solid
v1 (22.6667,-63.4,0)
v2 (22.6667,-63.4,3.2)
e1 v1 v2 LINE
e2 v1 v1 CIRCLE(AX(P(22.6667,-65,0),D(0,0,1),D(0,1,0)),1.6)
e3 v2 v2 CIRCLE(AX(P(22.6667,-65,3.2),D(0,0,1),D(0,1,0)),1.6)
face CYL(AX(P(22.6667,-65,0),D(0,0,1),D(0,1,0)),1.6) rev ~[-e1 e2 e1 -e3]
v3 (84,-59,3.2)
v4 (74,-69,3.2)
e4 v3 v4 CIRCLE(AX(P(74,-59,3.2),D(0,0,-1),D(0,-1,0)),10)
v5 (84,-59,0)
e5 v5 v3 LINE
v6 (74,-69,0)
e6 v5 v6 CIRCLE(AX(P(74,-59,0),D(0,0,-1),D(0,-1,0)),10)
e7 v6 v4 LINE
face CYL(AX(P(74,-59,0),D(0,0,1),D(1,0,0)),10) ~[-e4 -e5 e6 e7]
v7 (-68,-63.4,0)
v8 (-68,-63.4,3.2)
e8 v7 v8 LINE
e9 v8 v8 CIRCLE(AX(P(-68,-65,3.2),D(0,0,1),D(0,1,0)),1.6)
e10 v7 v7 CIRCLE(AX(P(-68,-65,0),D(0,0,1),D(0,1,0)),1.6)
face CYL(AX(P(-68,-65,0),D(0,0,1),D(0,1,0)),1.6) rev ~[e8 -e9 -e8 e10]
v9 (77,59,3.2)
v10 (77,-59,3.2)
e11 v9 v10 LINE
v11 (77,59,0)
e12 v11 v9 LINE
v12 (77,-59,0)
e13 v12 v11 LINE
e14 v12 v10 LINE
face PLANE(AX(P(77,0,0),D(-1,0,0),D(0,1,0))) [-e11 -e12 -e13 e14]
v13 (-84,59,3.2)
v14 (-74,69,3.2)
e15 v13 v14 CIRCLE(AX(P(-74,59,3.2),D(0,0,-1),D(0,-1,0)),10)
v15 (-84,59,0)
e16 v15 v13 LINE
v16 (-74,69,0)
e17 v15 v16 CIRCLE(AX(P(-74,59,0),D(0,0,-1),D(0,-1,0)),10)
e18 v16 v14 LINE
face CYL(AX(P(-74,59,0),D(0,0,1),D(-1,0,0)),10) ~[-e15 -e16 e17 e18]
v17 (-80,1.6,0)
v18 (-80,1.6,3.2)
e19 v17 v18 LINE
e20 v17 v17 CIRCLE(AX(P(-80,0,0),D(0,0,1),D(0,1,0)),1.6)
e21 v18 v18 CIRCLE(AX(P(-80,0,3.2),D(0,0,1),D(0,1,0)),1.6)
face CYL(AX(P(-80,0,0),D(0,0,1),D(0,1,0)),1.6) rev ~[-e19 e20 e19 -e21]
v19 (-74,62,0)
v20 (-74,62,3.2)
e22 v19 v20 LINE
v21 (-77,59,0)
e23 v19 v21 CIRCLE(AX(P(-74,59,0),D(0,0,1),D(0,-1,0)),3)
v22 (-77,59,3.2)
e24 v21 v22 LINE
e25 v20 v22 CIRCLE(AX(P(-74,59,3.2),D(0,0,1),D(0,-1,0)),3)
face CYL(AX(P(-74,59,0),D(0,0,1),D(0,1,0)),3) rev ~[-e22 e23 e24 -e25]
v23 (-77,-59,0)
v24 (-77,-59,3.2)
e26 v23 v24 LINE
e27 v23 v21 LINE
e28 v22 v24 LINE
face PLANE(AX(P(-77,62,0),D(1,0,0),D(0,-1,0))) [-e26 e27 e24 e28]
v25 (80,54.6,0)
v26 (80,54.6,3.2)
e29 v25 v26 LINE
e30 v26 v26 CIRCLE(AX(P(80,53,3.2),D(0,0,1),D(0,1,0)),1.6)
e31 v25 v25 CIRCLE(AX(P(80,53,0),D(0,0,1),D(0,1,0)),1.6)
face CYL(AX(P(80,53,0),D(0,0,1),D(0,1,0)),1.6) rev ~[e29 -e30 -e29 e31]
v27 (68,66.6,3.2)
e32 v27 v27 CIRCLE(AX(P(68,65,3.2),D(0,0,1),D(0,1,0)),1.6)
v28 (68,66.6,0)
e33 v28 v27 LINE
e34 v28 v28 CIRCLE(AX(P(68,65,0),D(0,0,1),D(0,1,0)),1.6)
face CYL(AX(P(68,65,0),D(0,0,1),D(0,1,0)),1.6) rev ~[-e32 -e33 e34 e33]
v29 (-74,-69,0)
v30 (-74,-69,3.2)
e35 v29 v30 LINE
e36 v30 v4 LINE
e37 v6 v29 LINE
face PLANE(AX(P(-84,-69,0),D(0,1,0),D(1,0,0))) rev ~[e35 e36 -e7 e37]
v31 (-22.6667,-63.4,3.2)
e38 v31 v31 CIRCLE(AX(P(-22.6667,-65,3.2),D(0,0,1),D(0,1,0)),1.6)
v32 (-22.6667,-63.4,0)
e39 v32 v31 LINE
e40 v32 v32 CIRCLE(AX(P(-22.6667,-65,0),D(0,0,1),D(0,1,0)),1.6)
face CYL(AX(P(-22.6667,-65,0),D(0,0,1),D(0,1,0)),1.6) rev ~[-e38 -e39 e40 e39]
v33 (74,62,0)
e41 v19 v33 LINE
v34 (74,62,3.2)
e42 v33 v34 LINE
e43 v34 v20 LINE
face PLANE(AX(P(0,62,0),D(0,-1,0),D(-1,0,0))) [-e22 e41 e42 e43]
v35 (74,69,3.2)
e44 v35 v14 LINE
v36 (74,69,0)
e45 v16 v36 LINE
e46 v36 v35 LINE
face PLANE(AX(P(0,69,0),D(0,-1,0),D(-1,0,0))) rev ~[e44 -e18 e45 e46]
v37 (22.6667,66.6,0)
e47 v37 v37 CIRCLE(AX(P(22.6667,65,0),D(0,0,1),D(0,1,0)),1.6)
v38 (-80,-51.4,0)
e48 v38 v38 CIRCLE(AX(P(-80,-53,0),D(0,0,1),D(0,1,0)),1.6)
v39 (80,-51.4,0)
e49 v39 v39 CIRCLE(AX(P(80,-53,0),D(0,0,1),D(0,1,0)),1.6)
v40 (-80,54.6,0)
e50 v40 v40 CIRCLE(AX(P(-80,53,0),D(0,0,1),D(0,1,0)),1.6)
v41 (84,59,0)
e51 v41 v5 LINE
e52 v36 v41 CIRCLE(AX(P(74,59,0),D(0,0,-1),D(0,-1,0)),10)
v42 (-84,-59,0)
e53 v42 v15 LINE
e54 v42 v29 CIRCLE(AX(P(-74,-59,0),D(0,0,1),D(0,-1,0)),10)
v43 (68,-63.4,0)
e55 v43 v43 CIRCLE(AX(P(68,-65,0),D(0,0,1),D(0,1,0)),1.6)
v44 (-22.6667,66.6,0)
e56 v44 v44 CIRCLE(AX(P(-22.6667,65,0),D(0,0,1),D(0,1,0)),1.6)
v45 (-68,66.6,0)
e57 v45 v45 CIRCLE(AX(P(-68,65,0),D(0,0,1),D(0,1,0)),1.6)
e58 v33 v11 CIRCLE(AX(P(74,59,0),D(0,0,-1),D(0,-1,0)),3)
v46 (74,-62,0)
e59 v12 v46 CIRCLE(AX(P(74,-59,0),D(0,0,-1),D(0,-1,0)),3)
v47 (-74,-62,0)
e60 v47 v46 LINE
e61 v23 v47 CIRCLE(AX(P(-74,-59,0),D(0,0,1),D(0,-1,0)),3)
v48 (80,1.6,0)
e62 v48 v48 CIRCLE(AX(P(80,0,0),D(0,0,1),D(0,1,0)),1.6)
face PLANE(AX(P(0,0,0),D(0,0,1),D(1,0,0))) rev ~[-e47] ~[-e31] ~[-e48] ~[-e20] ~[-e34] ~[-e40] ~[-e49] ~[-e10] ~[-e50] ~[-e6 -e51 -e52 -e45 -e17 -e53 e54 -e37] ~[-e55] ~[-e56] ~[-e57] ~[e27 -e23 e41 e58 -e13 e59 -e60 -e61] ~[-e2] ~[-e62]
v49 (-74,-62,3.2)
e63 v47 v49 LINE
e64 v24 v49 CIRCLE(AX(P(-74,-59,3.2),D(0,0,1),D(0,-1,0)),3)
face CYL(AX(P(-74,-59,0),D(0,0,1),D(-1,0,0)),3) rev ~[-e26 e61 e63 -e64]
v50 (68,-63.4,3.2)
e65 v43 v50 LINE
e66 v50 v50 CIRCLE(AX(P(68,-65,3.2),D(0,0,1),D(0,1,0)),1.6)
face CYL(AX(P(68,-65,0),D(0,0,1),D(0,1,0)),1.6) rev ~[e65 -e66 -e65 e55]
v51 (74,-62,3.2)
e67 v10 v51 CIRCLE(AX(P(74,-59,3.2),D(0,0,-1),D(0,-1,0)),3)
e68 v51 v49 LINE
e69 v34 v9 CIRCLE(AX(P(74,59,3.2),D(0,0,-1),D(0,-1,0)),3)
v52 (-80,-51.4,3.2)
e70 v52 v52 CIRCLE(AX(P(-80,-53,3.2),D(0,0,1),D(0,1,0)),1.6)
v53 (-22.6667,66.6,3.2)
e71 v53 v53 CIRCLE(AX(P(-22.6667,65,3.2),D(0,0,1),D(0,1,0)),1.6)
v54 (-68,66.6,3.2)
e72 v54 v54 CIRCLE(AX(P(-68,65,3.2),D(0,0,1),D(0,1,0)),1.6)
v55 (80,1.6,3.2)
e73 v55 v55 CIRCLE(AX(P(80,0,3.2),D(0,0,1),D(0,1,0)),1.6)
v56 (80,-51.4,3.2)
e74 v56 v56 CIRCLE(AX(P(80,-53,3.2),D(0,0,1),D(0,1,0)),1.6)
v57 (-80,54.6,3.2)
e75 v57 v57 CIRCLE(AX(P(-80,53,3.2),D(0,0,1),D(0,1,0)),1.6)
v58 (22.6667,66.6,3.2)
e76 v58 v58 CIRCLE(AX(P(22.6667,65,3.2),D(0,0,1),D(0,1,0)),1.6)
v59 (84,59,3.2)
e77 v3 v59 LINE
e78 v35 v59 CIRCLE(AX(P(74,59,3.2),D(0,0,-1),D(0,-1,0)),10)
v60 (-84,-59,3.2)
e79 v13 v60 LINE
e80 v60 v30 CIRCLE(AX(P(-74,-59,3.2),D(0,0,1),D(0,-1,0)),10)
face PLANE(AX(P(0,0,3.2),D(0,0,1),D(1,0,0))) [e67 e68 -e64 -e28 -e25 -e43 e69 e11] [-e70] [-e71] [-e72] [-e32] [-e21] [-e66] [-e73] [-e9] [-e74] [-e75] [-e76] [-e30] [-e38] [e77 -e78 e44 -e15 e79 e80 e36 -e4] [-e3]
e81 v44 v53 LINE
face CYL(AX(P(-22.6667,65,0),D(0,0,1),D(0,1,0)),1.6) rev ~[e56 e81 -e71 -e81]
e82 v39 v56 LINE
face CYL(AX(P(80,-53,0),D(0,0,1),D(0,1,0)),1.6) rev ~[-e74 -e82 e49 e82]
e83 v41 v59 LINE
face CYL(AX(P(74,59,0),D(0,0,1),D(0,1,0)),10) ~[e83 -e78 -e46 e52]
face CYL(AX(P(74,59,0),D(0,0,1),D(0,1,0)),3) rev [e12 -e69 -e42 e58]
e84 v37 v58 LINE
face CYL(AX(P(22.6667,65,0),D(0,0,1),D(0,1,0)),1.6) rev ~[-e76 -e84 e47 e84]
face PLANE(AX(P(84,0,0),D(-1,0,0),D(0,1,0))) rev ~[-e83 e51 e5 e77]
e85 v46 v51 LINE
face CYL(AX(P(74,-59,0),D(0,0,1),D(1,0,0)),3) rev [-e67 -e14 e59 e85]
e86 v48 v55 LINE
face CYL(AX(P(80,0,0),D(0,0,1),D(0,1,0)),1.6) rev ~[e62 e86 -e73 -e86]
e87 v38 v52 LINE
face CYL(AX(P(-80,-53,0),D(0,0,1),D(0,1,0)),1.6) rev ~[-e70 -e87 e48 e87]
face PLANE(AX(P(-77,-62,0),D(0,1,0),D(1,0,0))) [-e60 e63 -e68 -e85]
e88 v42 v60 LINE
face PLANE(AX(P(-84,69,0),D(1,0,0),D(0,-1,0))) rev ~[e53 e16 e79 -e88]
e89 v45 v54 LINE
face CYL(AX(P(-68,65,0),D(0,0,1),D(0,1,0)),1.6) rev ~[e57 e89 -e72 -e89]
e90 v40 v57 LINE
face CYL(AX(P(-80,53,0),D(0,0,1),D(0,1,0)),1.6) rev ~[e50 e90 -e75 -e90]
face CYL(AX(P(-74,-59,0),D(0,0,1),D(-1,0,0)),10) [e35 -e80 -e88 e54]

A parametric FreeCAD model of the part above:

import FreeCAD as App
import Part
import Sketcher
from FreeCAD import Vector


def edges_at(feature, points):
    """Names of the edges that pass closest to the given points."""
    edges = feature.Shape.Edges
    near = lambda p: min(range(len(edges)), key=lambda i: edges[i].distToShape(Part.Vertex(*p))[0])
    return sorted({f"Edge{near(p) + 1}" for p in points})


def add_polygon(sketch, points):
    """Adds a closed chain of lines whose ends are joined by coincident constraints."""
    first, n = sketch.GeometryCount, len(points)
    for a, b in zip(points, points[1:] + points[:1]):
        sketch.addGeometry(Part.LineSegment(App.Vector(*a, 0), App.Vector(*b, 0)), False)
    for i in range(n):
        sketch.addConstraint(Sketcher.Constraint("Coincident", first + i, 2, first + (i + 1) % n, 1))

doc = App.newDocument("Part")
params = doc.addObject("Spreadsheet::Sheet", "Params")
for row, (alias, value) in enumerate([
    ("sketch1_width", "168 mm"),
    ("sketch1_height", "138 mm"),
    ("sketch1_width2", "154 mm"),
    ("sketch1_height2", "124 mm"),
    ("pad1_length", "3.2 mm"),
    ("fillet_radius", "10 mm"),
    ("sketch2_diameter", "3.2 mm"),
    ("hole_diameter", "3.2 mm"),
    ("hole_depth", "3.2 mm"),
    ("fillet2_radius", "3 mm"),
], start=1):
    params.set(f"A{row}", alias)
    params.set(f"B{row}", "=" + value)
    params.setAlias(f"B{row}", alias)

body = doc.addObject("PartDesign::Body", "Body")

# Sketch on XY plane
sketch1 = body.newObject("Sketcher::SketchObject", "Sketch")
sketch1.AttachmentSupport = (doc.getObject("XY_Plane"), [""])
sketch1.MapMode = "FlatFace"
add_polygon(sketch1, [(-84, 69), (-84, -69), (84, -69), (84, 69)])  # lines 0-3
add_polygon(sketch1, [(-77, 62), (77, 62), (77, -62), (-77, -62)])  # lines 4-7
sketch1.addConstraint([
    Sketcher.Constraint("Vertical", 0),
    Sketcher.Constraint("Horizontal", 1),
    Sketcher.Constraint("Vertical", 2),
    Sketcher.Constraint("Horizontal", 3),
    Sketcher.Constraint("Horizontal", 4),
    Sketcher.Constraint("Vertical", 5),
    Sketcher.Constraint("Horizontal", 6),
    Sketcher.Constraint("Vertical", 7),
    Sketcher.Constraint("Symmetric", 0, 2, 2, 2, -1, 1),
    Sketcher.Constraint("Symmetric", 4, 2, 6, 2, -1, 1),
    Sketcher.Constraint("DistanceX", 1, 1, 1, 2, 168.0),
    Sketcher.Constraint("DistanceY", 0, 2, 0, 1, 138.0),
    Sketcher.Constraint("DistanceX", 4, 1, 4, 2, 154.0),
    Sketcher.Constraint("DistanceY", 5, 2, 5, 1, 124.0),
])
sketch1.setExpression("Constraints[18]", "Params.sketch1_width")
sketch1.setExpression("Constraints[19]", "Params.sketch1_height")
sketch1.setExpression("Constraints[20]", "Params.sketch1_width2")
sketch1.setExpression("Constraints[21]", "Params.sketch1_height2")
pad1 = body.newObject("PartDesign::Pad", "Pad")
pad1.Profile = sketch1
pad1.setExpression("Length", "Params.pad1_length")
doc.recompute()

fillet = body.newObject("PartDesign::Fillet", "Fillet")
fillet.Base = (pad1, edges_at(pad1, [
    (-84, -69, 1.6),
    (84, -69, 1.6),
    (84, 69, 1.6),
    (-84, 69, 1.6),
]))
fillet.setExpression("Radius", "Params.fillet_radius")

# Sketch on XY plane
sketch2 = body.newObject("Sketcher::SketchObject", "Sketch001")
sketch2.AttachmentSupport = (doc.getObject("XY_Plane"), [""])
sketch2.MapMode = "FlatFace"
sketch2.addGeometry([
    Part.Circle(Vector(-68, -65, 0), Vector(0, 0, 1), 1.6),  # 0
    Part.Circle(Vector(-80, -53, 0), Vector(0, 0, 1), 1.6),  # 1
    Part.Circle(Vector(-22.7, -65, 0), Vector(0, 0, 1), 1.6),  # 2
    Part.Circle(Vector(22.7, -65, 0), Vector(0, 0, 1), 1.6),  # 3
    Part.Circle(Vector(68, -65, 0), Vector(0, 0, 1), 1.6),  # 4
    Part.Circle(Vector(-80, 0, 0), Vector(0, 0, 1), 1.6),  # 5
    Part.Circle(Vector(-80, 53, 0), Vector(0, 0, 1), 1.6),  # 6
    Part.Circle(Vector(80, 53, 0), Vector(0, 0, 1), 1.6),  # 7
    Part.Circle(Vector(80, 0, 0), Vector(0, 0, 1), 1.6),  # 8
    Part.Circle(Vector(80, -53, 0), Vector(0, 0, 1), 1.6),  # 9
    Part.Circle(Vector(-68, 65, 0), Vector(0, 0, 1), 1.6),  # 10
    Part.Circle(Vector(-22.7, 65, 0), Vector(0, 0, 1), 1.6),  # 11
    Part.Circle(Vector(22.7, 65, 0), Vector(0, 0, 1), 1.6),  # 12
    Part.Circle(Vector(68, 65, 0), Vector(0, 0, 1), 1.6),  # 13
], False)
sketch2.addConstraint([
    Sketcher.Constraint("Equal", 0, 1),
    Sketcher.Constraint("Equal", 1, 2),
    Sketcher.Constraint("Equal", 2, 3),
    Sketcher.Constraint("Equal", 3, 4),
    Sketcher.Constraint("Equal", 4, 5),
    Sketcher.Constraint("Equal", 5, 6),
    Sketcher.Constraint("Equal", 6, 7),
    Sketcher.Constraint("Equal", 7, 8),
    Sketcher.Constraint("Equal", 8, 9),
    Sketcher.Constraint("Equal", 9, 10),
    Sketcher.Constraint("Equal", 10, 11),
    Sketcher.Constraint("Equal", 11, 12),
    Sketcher.Constraint("Equal", 12, 13),
    Sketcher.Constraint("Symmetric", 1, 3, 7, 3, -1, 1),
    Sketcher.Constraint("Symmetric", 5, 3, 8, 3, -1, 1),
    Sketcher.Constraint("Symmetric", 6, 3, 9, 3, -1, 1),
    Sketcher.Constraint("Symmetric", 4, 3, 10, 3, -1, 1),
    Sketcher.Constraint("Symmetric", 3, 3, 11, 3, -1, 1),
    Sketcher.Constraint("Symmetric", 2, 3, 12, 3, -1, 1),
    Sketcher.Constraint("Symmetric", 0, 3, 13, 3, -1, 1),
    Sketcher.Constraint("Symmetric", 2, 3, 3, 3, -2),
    Sketcher.Constraint("Symmetric", 0, 3, 4, 3, -2),
    Sketcher.Constraint("Symmetric", 6, 3, 7, 3, -2),
    Sketcher.Constraint("PointOnObject", 5, 3, -1),
    Sketcher.Constraint("Horizontal", 0, 3, 2, 3),
    Sketcher.Constraint("Vertical", 1, 3, 5, 3),
    Sketcher.Constraint("Diameter", 0, 3.2),
    Sketcher.Constraint("DistanceX", 0, 3, -1, 1, 68.0),
    Sketcher.Constraint("DistanceY", 0, 3, -1, 1, 65.0),
    Sketcher.Constraint("DistanceX", 1, 3, -1, 1, 80.0),
    Sketcher.Constraint("DistanceY", 1, 3, -1, 1, 53.0),
    Sketcher.Constraint("DistanceX", 2, 3, -1, 1, 22.6667),
])
sketch2.setExpression("Constraints[26]", "Params.sketch2_diameter")
doc.recompute()
hole = body.newObject("PartDesign::Hole", "Hole")
hole.Profile = sketch2
hole.ThreadType = "None"
hole.setExpression("Diameter", "Params.hole_diameter")
hole.DepthType = "Dimension"
hole.setExpression("Depth", "Params.hole_depth")
hole.DrillPoint = "Flat"
hole.Reversed = True
doc.recompute()

fillet2 = body.newObject("PartDesign::Fillet", "Fillet001")
fillet2.Base = (hole, edges_at(hole, [
    (77, 62, 1.6),
    (-77, 62, 1.6),
    (-77, -62, 1.6),
    (77, -62, 1.6),
]))
fillet2.setExpression("Radius", "Params.fillet2_radius")

doc.recompute()
